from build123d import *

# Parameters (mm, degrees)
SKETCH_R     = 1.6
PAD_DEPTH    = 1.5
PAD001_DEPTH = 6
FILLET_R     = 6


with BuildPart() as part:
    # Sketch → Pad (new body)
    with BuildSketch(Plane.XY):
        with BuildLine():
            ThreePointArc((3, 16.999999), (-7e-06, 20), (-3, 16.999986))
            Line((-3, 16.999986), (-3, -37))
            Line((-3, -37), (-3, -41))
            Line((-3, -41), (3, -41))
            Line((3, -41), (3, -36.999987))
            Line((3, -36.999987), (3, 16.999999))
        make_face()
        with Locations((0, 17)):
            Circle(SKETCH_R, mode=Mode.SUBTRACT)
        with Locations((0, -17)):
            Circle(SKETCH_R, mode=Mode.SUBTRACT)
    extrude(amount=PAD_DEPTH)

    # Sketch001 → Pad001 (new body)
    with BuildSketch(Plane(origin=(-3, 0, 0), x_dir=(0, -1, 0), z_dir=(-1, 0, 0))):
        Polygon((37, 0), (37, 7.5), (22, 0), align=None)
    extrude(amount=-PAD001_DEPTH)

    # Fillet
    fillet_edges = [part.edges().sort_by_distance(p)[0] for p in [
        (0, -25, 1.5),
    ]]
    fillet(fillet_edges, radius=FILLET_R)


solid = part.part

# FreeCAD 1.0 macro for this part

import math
import FreeCAD as App
import Part
import Sketcher


def edges_at(feature, points):
    """Names of the edges that pass closest to the given points."""
    edges = feature.Shape.Edges
    near = lambda p: min(range(len(edges)), key=lambda i: edges[i].distToShape(Part.Vertex(*p))[0])
    return sorted({f"Edge{near(p) + 1}" for p in points})


def add_polygon(sketch, points):
    """Adds a closed chain of lines whose ends are joined by coincident constraints."""
    first, n = sketch.GeometryCount, len(points)
    for a, b in zip(points, points[1:] + points[:1]):
        sketch.addGeometry(Part.LineSegment(App.Vector(*a, 0), App.Vector(*b, 0)), False)
    for i in range(n):
        sketch.addConstraint(Sketcher.Constraint("Coincident", first + i, 2, first + (i + 1) % n, 1))

doc = App.newDocument("Part")
body = doc.addObject("PartDesign::Body", "Body")

# Sketch on XY plane
sketch1 = doc.addObject("Sketcher::SketchObject", "Sketch")
body.addObject(sketch1)
sketch1.AttachmentSupport = (doc.XY_Plane, [""])
sketch1.MapMode = "FlatFace"
sketch1.addGeometry([
    Part.ArcOfCircle(Part.Circle(App.Vector(0, 17, 0), App.Vector(0, 0, 1), 3), math.radians(0), math.radians(180)),  # 0
    Part.LineSegment(App.Vector(-3, 17, 0), App.Vector(-3, -41, 0)),  # 1
    Part.LineSegment(App.Vector(-3, -41, 0), App.Vector(3, -41, 0)),  # 2
    Part.LineSegment(App.Vector(3, -41, 0), App.Vector(3, 17, 0)),  # 3
    Part.Circle(App.Vector(0, -17, 0), App.Vector(0, 0, 1), 1.6),  # 4
    Part.Circle(App.Vector(0, 17, 0), App.Vector(0, 0, 1), 1.6),  # 5
], False)
sketch1.addConstraint([
    Sketcher.Constraint("Coincident", 0, 2, 1, 1),
    Sketcher.Constraint("Coincident", 1, 2, 2, 1),
    Sketcher.Constraint("Coincident", 2, 2, 3, 1),
    Sketcher.Constraint("Tangent", 3, 2, 0, 1),
    Sketcher.Constraint("Vertical", 1),
    Sketcher.Constraint("Horizontal", 2),
    Sketcher.Constraint("Vertical", 3),
    Sketcher.Constraint("Coincident", 5, 3, 0, 3),
    Sketcher.Constraint("Equal", 4, 5),
    Sketcher.Constraint("Symmetric", 0, 3, 4, 3, -1, 1),
    Sketcher.Constraint("PointOnObject", 0, 3, -2),
    Sketcher.Constraint("Radius", 0, 3.0),
    Sketcher.Constraint("Diameter", 4, 3.2),
    Sketcher.Constraint("DistanceY", 3, 1, 3, 2, 57.999999),
    Sketcher.Constraint("DistanceY", -1, 1, 0, 3, 17.0),
    Sketcher.Constraint("DistanceY", 1, 2, 1, 1, 57.999986),
])
pad1 = doc.addObject("PartDesign::Pad", "Pad")
body.addObject(pad1)
pad1.Profile = sketch1
pad1.Length = 1.5

# Sketch on YZ plane
sketch2 = doc.addObject("Sketcher::SketchObject", "Sketch001")
body.addObject(sketch2)
sketch2.AttachmentSupport = (doc.YZ_Plane, [""])
sketch2.MapMode = "FlatFace"
sketch2.AttachmentOffset = App.Placement(App.Vector(0, 0, -3), App.Rotation())
add_polygon(sketch2, [(-37, 0), (-37, 8), (-22, 0)])  # lines 0-2
sketch2.addConstraint([
    Sketcher.Constraint("Vertical", 0),
    Sketcher.Constraint("Horizontal", 2),
    Sketcher.Constraint("PointOnObject", 1, 2, -1),
    Sketcher.Constraint("DistanceX", 2, 2, 2, 1, 15.0),
    Sketcher.Constraint("DistanceY", 0, 1, 0, 2, 7.5),
    Sketcher.Constraint("DistanceX", 0, 2, -1, 1, 37.0),
])
pad2 = doc.addObject("PartDesign::Pad", "Pad001")
body.addObject(pad2)
pad2.Profile = sketch2
pad2.Length = 6
doc.recompute()

fillet = doc.addObject("PartDesign::Fillet", "Fillet")
body.addObject(fillet)
fillet.Base = (pad2, edges_at(pad2, [(0, -25, 1.5)]))
fillet.Radius = 6

doc.recompute()
